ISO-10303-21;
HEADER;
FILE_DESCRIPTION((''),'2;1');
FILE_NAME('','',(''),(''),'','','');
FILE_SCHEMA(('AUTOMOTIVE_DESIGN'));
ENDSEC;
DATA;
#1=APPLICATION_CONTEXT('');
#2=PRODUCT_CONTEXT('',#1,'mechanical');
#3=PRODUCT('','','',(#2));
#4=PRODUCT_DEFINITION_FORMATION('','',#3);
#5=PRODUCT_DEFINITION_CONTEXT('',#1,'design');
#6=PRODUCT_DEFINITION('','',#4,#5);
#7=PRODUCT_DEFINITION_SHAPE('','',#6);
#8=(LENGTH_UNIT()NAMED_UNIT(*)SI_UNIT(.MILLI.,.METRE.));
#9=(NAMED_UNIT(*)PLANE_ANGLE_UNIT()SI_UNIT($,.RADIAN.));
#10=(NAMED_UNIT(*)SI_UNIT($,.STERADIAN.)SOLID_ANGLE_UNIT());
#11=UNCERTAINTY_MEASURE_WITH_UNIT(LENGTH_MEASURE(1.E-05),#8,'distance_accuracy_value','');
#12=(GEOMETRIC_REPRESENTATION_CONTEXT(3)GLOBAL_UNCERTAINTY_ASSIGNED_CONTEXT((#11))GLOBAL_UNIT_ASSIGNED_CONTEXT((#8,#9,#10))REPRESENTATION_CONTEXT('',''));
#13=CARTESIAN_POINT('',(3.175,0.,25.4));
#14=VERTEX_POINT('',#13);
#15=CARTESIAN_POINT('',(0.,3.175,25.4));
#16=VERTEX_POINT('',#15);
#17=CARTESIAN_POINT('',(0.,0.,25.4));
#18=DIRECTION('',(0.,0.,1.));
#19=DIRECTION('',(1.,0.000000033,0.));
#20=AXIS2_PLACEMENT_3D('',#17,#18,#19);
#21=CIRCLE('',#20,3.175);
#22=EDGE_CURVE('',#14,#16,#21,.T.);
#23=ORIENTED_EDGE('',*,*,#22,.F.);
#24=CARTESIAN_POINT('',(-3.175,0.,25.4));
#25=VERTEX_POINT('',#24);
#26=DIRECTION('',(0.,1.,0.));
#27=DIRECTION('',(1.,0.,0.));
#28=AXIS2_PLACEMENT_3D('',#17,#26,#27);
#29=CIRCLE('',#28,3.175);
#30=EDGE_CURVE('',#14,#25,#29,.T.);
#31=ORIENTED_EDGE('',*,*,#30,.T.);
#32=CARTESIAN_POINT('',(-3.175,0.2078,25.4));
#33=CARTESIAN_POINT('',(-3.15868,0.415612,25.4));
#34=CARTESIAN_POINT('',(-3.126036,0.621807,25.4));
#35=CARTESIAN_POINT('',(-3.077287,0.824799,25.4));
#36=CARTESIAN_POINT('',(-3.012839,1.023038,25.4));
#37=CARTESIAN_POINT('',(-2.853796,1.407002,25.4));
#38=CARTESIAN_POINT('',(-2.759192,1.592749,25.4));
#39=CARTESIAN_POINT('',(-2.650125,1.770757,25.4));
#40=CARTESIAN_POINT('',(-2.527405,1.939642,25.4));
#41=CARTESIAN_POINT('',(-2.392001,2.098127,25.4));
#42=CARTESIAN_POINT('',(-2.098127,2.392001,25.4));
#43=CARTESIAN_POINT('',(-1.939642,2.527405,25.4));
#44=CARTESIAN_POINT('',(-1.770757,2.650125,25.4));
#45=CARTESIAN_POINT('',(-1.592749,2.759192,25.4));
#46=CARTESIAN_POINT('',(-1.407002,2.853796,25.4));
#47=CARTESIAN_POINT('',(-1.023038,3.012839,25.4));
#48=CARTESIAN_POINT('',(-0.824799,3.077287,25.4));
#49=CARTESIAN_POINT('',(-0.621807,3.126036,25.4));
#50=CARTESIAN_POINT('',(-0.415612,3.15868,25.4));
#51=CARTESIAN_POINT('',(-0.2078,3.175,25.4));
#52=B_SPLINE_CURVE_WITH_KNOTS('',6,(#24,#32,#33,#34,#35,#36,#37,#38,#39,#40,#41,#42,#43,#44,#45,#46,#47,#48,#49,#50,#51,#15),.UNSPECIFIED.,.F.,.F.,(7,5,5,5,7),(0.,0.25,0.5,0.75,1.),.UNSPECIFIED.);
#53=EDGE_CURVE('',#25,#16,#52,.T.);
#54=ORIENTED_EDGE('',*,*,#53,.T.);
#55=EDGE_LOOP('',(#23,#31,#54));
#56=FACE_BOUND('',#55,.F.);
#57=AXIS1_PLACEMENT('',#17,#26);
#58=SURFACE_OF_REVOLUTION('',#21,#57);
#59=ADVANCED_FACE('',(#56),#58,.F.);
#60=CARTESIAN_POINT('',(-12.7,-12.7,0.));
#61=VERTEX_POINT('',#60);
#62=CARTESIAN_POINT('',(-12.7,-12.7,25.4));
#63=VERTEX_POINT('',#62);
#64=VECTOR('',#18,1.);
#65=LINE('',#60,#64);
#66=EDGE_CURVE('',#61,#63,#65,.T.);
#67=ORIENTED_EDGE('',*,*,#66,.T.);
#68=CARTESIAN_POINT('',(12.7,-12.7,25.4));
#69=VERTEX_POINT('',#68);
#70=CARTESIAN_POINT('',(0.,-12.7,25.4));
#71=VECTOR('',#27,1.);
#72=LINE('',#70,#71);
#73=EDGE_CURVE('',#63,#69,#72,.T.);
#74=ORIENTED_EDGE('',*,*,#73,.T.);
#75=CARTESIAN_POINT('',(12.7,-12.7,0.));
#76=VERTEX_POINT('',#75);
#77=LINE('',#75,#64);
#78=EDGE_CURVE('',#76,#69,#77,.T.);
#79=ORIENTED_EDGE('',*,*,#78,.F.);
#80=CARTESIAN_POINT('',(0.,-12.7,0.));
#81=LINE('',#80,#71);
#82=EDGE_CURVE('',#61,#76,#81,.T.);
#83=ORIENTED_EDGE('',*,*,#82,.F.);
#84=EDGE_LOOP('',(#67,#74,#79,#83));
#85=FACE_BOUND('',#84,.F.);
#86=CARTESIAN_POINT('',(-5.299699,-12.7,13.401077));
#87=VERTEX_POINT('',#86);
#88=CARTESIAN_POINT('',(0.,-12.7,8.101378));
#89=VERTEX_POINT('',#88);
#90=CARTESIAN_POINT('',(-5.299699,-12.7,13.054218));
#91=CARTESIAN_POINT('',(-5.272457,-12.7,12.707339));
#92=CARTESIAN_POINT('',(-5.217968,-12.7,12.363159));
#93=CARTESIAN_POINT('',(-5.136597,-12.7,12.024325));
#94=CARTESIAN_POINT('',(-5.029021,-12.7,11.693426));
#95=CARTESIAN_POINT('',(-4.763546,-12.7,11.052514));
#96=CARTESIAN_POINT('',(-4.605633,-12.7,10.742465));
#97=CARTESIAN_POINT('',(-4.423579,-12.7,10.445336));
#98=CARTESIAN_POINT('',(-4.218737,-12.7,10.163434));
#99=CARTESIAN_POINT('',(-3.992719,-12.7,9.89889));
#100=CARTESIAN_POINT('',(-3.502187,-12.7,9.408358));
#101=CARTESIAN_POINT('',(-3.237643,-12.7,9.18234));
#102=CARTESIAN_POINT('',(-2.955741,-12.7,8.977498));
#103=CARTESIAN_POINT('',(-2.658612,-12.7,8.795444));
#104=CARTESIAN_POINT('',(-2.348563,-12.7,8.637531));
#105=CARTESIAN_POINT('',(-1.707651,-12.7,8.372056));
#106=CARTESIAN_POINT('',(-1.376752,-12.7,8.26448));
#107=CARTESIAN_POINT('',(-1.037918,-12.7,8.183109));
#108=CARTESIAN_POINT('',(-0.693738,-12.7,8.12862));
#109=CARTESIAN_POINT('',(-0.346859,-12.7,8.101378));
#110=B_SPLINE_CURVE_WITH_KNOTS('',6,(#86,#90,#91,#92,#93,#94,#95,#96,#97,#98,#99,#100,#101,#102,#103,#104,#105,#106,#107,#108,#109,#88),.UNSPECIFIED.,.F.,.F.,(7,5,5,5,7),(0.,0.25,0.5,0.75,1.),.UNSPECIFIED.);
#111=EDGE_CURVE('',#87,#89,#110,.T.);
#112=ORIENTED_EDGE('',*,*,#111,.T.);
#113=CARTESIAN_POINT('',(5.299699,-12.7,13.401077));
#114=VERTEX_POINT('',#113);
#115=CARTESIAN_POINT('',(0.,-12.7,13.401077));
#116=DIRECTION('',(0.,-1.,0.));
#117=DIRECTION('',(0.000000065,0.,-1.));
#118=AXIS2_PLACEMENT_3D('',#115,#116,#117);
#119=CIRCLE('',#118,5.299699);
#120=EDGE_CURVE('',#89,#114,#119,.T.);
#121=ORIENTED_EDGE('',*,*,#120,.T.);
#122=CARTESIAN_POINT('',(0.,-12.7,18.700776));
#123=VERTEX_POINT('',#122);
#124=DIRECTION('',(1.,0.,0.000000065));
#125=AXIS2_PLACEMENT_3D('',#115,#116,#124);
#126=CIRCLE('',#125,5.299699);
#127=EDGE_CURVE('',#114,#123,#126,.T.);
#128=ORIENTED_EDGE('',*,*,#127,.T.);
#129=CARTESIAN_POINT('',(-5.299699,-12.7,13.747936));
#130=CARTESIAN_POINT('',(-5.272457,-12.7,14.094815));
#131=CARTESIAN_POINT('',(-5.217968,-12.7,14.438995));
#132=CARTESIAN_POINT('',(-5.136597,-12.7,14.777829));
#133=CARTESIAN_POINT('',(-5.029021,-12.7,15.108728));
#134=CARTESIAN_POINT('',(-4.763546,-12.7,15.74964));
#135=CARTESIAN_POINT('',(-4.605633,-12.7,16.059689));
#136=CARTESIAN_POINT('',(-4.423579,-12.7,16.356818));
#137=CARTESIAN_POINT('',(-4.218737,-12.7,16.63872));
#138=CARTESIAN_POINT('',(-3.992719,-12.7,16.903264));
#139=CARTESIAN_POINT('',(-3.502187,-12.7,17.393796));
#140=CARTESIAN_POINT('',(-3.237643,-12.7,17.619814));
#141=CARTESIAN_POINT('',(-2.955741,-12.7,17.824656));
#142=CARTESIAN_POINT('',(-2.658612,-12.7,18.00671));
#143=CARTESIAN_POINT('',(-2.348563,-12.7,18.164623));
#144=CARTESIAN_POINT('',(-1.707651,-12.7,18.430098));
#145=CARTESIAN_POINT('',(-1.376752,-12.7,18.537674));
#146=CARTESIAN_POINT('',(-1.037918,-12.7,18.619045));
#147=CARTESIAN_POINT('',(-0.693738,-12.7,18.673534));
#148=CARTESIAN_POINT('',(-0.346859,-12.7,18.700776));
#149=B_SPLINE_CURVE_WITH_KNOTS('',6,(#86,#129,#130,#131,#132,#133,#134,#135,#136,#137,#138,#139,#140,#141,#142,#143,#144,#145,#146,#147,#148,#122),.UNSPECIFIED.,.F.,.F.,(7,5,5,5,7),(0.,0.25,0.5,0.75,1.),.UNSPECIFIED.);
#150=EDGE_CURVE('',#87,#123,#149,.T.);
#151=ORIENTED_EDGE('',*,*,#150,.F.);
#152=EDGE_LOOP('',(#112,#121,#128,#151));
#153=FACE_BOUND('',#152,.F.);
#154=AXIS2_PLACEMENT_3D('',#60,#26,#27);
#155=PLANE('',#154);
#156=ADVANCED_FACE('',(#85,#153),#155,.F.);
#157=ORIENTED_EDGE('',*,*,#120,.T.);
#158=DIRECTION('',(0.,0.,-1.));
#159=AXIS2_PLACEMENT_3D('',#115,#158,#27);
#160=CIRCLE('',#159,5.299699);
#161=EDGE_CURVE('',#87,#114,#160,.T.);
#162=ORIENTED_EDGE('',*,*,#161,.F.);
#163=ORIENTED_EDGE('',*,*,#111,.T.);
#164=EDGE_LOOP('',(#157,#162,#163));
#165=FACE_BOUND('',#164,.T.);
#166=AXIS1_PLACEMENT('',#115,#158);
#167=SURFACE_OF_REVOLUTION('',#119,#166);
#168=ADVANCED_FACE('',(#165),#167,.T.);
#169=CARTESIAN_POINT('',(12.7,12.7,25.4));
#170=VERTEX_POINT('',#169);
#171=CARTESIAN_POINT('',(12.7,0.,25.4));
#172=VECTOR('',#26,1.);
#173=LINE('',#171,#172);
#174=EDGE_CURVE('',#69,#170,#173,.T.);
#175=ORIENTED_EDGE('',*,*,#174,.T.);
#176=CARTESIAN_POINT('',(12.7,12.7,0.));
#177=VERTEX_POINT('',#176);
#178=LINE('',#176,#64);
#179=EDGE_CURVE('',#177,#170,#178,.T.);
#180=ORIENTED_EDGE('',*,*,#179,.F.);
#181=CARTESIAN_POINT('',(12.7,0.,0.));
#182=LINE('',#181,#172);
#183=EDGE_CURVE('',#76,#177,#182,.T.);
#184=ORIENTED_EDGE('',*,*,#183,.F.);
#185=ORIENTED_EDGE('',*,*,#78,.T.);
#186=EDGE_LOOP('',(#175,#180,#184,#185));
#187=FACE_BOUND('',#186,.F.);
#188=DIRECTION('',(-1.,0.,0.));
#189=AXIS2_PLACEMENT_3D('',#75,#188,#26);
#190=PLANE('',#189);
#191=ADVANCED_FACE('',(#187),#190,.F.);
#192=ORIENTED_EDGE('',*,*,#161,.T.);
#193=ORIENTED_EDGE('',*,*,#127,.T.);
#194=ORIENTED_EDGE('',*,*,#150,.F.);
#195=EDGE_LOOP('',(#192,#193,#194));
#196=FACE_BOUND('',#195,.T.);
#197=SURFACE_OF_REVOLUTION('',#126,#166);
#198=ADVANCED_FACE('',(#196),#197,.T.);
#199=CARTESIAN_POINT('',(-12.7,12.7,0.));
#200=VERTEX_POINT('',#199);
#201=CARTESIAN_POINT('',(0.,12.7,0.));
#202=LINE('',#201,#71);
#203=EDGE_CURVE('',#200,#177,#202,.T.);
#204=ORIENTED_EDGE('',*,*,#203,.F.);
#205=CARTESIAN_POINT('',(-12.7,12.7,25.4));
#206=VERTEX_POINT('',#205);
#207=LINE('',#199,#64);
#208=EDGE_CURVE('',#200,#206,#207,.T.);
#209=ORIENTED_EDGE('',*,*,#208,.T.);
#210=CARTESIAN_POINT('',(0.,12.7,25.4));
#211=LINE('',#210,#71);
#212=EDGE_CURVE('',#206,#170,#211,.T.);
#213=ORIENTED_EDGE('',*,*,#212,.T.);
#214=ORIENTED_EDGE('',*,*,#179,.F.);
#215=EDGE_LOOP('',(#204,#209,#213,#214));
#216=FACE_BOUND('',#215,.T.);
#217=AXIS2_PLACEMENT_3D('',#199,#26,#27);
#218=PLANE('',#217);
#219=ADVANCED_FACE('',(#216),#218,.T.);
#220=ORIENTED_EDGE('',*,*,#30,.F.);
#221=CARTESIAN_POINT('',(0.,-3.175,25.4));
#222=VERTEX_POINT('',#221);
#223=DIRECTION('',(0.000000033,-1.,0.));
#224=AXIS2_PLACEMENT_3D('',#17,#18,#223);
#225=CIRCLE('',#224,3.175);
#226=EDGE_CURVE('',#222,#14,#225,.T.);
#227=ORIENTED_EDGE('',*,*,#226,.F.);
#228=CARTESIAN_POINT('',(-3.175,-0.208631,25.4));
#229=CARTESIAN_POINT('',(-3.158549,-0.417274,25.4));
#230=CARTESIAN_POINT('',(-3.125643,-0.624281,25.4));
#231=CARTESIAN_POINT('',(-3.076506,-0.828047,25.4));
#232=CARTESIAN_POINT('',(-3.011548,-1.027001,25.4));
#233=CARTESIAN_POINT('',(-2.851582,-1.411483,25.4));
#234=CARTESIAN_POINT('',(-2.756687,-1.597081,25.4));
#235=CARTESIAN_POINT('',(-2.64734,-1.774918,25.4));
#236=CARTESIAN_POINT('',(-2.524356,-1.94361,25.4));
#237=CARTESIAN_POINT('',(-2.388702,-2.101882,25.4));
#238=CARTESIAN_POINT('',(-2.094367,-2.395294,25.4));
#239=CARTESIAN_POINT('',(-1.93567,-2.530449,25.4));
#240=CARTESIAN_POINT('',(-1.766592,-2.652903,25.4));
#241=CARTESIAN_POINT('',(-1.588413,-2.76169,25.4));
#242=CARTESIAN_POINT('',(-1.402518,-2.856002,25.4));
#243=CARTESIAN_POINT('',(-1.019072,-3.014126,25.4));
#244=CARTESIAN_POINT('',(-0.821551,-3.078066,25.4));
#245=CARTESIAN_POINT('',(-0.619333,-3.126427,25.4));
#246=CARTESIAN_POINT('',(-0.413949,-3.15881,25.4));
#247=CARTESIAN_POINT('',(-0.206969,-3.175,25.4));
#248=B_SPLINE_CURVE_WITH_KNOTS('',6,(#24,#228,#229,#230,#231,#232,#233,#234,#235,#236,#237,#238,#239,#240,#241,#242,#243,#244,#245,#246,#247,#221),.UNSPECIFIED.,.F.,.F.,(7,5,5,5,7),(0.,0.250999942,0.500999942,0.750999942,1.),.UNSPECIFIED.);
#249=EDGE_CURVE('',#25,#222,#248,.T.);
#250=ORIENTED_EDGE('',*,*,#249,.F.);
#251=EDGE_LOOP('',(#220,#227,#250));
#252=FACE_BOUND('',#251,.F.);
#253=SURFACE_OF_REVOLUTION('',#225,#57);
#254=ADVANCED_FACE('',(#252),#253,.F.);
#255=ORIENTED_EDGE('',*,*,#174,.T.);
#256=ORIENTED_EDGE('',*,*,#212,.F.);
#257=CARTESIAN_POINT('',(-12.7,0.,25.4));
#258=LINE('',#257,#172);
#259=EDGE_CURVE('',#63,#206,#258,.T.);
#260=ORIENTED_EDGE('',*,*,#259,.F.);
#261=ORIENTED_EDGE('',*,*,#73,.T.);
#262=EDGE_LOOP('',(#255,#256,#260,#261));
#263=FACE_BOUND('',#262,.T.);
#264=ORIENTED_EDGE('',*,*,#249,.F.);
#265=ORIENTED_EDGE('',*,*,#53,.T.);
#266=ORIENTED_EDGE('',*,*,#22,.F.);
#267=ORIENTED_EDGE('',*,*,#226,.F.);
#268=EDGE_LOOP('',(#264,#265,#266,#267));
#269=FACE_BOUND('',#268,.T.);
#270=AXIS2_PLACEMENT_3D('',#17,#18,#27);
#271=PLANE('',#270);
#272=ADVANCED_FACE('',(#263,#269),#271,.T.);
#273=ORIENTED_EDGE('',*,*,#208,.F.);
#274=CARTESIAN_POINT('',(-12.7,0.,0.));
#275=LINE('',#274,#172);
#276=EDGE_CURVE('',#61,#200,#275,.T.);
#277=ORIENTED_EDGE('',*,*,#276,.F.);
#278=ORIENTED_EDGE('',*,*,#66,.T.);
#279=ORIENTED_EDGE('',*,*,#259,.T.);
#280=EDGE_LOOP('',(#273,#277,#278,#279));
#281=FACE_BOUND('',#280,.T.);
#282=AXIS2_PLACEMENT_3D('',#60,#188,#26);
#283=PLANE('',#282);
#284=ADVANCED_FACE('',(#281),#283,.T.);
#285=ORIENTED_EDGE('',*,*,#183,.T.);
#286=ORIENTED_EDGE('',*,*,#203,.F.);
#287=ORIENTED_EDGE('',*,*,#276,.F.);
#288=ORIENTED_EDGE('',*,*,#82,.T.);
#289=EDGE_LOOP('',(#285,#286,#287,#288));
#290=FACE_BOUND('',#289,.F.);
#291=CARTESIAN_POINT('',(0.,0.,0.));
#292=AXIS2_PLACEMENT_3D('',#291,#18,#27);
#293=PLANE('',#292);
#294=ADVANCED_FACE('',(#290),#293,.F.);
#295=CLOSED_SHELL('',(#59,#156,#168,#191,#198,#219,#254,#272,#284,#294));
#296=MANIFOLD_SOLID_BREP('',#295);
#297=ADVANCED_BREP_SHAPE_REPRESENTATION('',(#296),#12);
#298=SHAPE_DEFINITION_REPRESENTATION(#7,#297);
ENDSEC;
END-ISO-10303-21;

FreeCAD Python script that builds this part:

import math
import FreeCAD as App
import Part
import Sketcher
from FreeCAD import Vector
Q = App.Units.Quantity

doc = App.newDocument("Part")
body = doc.addObject("PartDesign::Body", "Body")

sketch1 = body.newObject("Sketcher::SketchObject", "Sketch")
sketch1.AttachmentSupport = (doc.getObject("XY_Plane"), [""])
sketch1.MapMode = "FlatFace"
sketch1.addGeometry([
    Part.LineSegment(Vector(-13, 13, 0), Vector(-13, -13, 0)),
    Part.LineSegment(Vector(-13, -13, 0), Vector(13, -13, 0)),
    Part.LineSegment(Vector(13, -13, 0), Vector(13, 13, 0)),
    Part.LineSegment(Vector(13, 13, 0), Vector(-13, 13, 0)),
], False)
sketch1.addConstraint([
    Sketcher.Constraint("Coincident", 0, 2, 1, 1),
    Sketcher.Constraint("Coincident", 1, 2, 2, 1),
    Sketcher.Constraint("Coincident", 2, 2, 3, 1),
    Sketcher.Constraint("Coincident", 3, 2, 0, 1),
    Sketcher.Constraint("Vertical", 0),
    Sketcher.Constraint("Horizontal", 1),
    Sketcher.Constraint("Vertical", 2),
    Sketcher.Constraint("Horizontal", 3),
    Sketcher.Constraint("Symmetric", 0, 2, 2, 2, -1, 1),
    Sketcher.Constraint("Equal", 3, 0),
    Sketcher.Constraint("DistanceX", 1, 1, 1, 2, Q("1 in")),
])
pad1 = body.newObject("PartDesign::Pad", "Pad")
pad1.Profile = sketch1
pad1.Length = Q("1 in")

sketch2 = body.newObject("Sketcher::SketchObject", "Sketch001")
sketch2.AttachmentSupport = (doc.getObject("XY_Plane"), [""])
sketch2.MapMode = "FlatFace"
sketch2.AttachmentOffset = App.Placement(Vector(0, 0, 1 * 25.4), App.Rotation())
sketch2.addGeometry([
    Part.ArcOfCircle(Part.Circle(Vector(0, 0, 0), Vector(0, 0, 1), 3.2), math.radians(-90), math.radians(0)),
    Part.ArcOfCircle(Part.Circle(Vector(0, 0, 0), Vector(0, 0, 1), 3.2), math.radians(0), math.radians(90)),
    Part.LineSegment(Vector(0, 3.2, 0), Vector(0, -3.2, 0)),
], False)
sketch2.addConstraint([
    Sketcher.Constraint("Tangent", 0, 2, 1, 1),
    Sketcher.Constraint("Coincident", 1, 2, 2, 1),
    Sketcher.Constraint("Coincident", 2, 2, 0, 1),
    Sketcher.Constraint("Vertical", 2),
    Sketcher.Constraint("Coincident", 0, 3, -1, 1),
    Sketcher.Constraint("Equal", 0, 1),
    Sketcher.Constraint("PointOnObject", 0, 2, -1),
    Sketcher.Constraint("PointOnObject", 1, 2, -2),
    Sketcher.Constraint("Radius", 0, Q("0.125 in")),
])
groove = body.newObject("PartDesign::Groove", "Groove")
groove.Profile = sketch2
groove.ReferenceAxis = (sketch2, ["V_Axis"])
groove.Angle = 360

sketch3 = body.newObject("Sketcher::SketchObject", "Sketch002")
sketch3.AttachmentSupport = (doc.getObject("XZ_Plane"), [""])
sketch3.MapMode = "FlatFace"
sketch3.AttachmentOffset = App.Placement(Vector(0, 0, 0.5 * 25.4), App.Rotation())
sketch3.addGeometry([
    Part.ArcOfCircle(Part.Circle(Vector(0, 13, 0), Vector(0, 0, 1), 5), math.radians(-90), math.radians(0)),
    Part.ArcOfCircle(Part.Circle(Vector(0, 13, 0), Vector(0, 0, 1), 5), math.radians(0), math.radians(90)),
    Part.LineSegment(Vector(0, 19, 0), Vector(0, 8, 0)),
], False)
sketch3.addConstraint([
    Sketcher.Constraint("Tangent", 0, 2, 1, 1),
    Sketcher.Constraint("Coincident", 1, 2, 2, 1),
    Sketcher.Constraint("Coincident", 2, 2, 0, 1),
    Sketcher.Constraint("Vertical", 2),
    Sketcher.Constraint("Equal", 0, 1),
    Sketcher.Constraint("PointOnObject", 0, 3, -2),
    Sketcher.Constraint("PointOnObject", 1, 2, -2),
    Sketcher.Constraint("Horizontal", 1, 3, 0, 2),
    Sketcher.Constraint("Radius", 0, Q("5.299699 mm")),
    Sketcher.Constraint("DistanceY", -1, 1, 0, 3, Q("13.401077 mm")),
])
groove2 = body.newObject("PartDesign::Groove", "Groove001")
groove2.Profile = sketch3
groove2.ReferenceAxis = (sketch3, ["V_Axis"])
groove2.Angle = 360

doc.recompute()
